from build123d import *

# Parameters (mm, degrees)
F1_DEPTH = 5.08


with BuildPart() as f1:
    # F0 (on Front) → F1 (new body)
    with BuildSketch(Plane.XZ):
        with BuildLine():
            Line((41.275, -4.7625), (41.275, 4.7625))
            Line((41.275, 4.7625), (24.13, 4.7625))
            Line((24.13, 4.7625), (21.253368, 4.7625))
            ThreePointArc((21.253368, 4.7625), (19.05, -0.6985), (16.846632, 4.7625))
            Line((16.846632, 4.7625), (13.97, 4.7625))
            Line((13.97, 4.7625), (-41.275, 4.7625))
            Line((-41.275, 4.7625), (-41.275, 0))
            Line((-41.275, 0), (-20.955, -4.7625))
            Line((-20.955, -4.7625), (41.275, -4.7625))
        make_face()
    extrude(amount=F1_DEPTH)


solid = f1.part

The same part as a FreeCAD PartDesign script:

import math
import FreeCAD as App
import Part
import Sketcher
from FreeCAD import Vector
Q = App.Units.Quantity

doc = App.newDocument("Part")
body = doc.addObject("PartDesign::Body", "Body")

sketch1 = body.newObject("Sketcher::SketchObject", "Sketch")
sketch1.AttachmentSupport = (doc.getObject("XZ_Plane"), [""])
sketch1.MapMode = "FlatFace"
sketch1.addGeometry(Part.LineSegment(Vector(41.3, -4.8, 0), Vector(41.3, 4.8, 0)), False)
sketch1.addGeometry(Part.LineSegment(Vector(41.3, 4.8, 0), Vector(21.3, 4.8, 0)), False)
sketch1.addGeometry(Part.ArcOfCircle(Part.Circle(Vector(19.1, 2.5, 0), Vector(0, 0, 1), 3.2), math.radians(134), math.radians(406)), False)
sketch1.addGeometry(Part.LineSegment(Vector(16.8, 4.8, 0), Vector(-41.3, 4.8, 0)), False)
sketch1.addGeometry(Part.LineSegment(Vector(-41.3, 4.8, 0), Vector(-41.3, 0, 0)), False)
sketch1.addGeometry(Part.LineSegment(Vector(-41.3, 0, 0), Vector(-21, -4.8, 0)), False)
sketch1.addGeometry(Part.LineSegment(Vector(-21, -4.8, 0), Vector(41.3, -4.8, 0)), False)
sketch1.addConstraint(Sketcher.Constraint("Coincident", 0, 2, 1, 1))
sketch1.addConstraint(Sketcher.Constraint("Coincident", 1, 2, 2, 2))
sketch1.addConstraint(Sketcher.Constraint("Coincident", 2, 1, 3, 1))
sketch1.addConstraint(Sketcher.Constraint("Coincident", 3, 2, 4, 1))
sketch1.addConstraint(Sketcher.Constraint("Coincident", 4, 2, 5, 1))
sketch1.addConstraint(Sketcher.Constraint("Coincident", 5, 2, 6, 1))
sketch1.addConstraint(Sketcher.Constraint("Coincident", 6, 2, 0, 1))
sketch1.addConstraint(Sketcher.Constraint("Vertical", 0))
sketch1.addConstraint(Sketcher.Constraint("Horizontal", 1))
sketch1.addConstraint(Sketcher.Constraint("Horizontal", 3))
sketch1.addConstraint(Sketcher.Constraint("Vertical", 4))
sketch1.addConstraint(Sketcher.Constraint("Horizontal", 6))
sketch1.addConstraint(Sketcher.Constraint("Symmetric", 3, 2, 6, 2, -1, 1))
sketch1.addConstraint(Sketcher.Constraint("PointOnObject", 4, 2, -1))
sketch1.addConstraint(Sketcher.Constraint("Horizontal", 1, 2, 2, 1))
sketch1.addConstraint(Sketcher.Constraint("Radius", 2, Q("0.125 in")))
sketch1.addConstraint(Sketcher.Constraint("DistanceX", 6, 1, 6, 2, Q("2.45 in")))
sketch1.addConstraint(Sketcher.Constraint("DistanceX", 4, 2, 5, 2, Q("0.8 in")))
sketch1.addConstraint(Sketcher.Constraint("DistanceY", 0, 1, 0, 2, Q("0.375 in")))
sketch1.addConstraint(Sketcher.Constraint("DistanceX", -1, 1, 2, 3, Q("0.75 in")))
sketch1.addConstraint(Sketcher.Constraint("DistanceY", 2, 3, 0, 2, Q("0.09 in")))
pad1 = body.newObject("PartDesign::Pad", "Pad")
pad1.Profile = sketch1
pad1.Length = Q("0.2 in")

doc.recompute()
